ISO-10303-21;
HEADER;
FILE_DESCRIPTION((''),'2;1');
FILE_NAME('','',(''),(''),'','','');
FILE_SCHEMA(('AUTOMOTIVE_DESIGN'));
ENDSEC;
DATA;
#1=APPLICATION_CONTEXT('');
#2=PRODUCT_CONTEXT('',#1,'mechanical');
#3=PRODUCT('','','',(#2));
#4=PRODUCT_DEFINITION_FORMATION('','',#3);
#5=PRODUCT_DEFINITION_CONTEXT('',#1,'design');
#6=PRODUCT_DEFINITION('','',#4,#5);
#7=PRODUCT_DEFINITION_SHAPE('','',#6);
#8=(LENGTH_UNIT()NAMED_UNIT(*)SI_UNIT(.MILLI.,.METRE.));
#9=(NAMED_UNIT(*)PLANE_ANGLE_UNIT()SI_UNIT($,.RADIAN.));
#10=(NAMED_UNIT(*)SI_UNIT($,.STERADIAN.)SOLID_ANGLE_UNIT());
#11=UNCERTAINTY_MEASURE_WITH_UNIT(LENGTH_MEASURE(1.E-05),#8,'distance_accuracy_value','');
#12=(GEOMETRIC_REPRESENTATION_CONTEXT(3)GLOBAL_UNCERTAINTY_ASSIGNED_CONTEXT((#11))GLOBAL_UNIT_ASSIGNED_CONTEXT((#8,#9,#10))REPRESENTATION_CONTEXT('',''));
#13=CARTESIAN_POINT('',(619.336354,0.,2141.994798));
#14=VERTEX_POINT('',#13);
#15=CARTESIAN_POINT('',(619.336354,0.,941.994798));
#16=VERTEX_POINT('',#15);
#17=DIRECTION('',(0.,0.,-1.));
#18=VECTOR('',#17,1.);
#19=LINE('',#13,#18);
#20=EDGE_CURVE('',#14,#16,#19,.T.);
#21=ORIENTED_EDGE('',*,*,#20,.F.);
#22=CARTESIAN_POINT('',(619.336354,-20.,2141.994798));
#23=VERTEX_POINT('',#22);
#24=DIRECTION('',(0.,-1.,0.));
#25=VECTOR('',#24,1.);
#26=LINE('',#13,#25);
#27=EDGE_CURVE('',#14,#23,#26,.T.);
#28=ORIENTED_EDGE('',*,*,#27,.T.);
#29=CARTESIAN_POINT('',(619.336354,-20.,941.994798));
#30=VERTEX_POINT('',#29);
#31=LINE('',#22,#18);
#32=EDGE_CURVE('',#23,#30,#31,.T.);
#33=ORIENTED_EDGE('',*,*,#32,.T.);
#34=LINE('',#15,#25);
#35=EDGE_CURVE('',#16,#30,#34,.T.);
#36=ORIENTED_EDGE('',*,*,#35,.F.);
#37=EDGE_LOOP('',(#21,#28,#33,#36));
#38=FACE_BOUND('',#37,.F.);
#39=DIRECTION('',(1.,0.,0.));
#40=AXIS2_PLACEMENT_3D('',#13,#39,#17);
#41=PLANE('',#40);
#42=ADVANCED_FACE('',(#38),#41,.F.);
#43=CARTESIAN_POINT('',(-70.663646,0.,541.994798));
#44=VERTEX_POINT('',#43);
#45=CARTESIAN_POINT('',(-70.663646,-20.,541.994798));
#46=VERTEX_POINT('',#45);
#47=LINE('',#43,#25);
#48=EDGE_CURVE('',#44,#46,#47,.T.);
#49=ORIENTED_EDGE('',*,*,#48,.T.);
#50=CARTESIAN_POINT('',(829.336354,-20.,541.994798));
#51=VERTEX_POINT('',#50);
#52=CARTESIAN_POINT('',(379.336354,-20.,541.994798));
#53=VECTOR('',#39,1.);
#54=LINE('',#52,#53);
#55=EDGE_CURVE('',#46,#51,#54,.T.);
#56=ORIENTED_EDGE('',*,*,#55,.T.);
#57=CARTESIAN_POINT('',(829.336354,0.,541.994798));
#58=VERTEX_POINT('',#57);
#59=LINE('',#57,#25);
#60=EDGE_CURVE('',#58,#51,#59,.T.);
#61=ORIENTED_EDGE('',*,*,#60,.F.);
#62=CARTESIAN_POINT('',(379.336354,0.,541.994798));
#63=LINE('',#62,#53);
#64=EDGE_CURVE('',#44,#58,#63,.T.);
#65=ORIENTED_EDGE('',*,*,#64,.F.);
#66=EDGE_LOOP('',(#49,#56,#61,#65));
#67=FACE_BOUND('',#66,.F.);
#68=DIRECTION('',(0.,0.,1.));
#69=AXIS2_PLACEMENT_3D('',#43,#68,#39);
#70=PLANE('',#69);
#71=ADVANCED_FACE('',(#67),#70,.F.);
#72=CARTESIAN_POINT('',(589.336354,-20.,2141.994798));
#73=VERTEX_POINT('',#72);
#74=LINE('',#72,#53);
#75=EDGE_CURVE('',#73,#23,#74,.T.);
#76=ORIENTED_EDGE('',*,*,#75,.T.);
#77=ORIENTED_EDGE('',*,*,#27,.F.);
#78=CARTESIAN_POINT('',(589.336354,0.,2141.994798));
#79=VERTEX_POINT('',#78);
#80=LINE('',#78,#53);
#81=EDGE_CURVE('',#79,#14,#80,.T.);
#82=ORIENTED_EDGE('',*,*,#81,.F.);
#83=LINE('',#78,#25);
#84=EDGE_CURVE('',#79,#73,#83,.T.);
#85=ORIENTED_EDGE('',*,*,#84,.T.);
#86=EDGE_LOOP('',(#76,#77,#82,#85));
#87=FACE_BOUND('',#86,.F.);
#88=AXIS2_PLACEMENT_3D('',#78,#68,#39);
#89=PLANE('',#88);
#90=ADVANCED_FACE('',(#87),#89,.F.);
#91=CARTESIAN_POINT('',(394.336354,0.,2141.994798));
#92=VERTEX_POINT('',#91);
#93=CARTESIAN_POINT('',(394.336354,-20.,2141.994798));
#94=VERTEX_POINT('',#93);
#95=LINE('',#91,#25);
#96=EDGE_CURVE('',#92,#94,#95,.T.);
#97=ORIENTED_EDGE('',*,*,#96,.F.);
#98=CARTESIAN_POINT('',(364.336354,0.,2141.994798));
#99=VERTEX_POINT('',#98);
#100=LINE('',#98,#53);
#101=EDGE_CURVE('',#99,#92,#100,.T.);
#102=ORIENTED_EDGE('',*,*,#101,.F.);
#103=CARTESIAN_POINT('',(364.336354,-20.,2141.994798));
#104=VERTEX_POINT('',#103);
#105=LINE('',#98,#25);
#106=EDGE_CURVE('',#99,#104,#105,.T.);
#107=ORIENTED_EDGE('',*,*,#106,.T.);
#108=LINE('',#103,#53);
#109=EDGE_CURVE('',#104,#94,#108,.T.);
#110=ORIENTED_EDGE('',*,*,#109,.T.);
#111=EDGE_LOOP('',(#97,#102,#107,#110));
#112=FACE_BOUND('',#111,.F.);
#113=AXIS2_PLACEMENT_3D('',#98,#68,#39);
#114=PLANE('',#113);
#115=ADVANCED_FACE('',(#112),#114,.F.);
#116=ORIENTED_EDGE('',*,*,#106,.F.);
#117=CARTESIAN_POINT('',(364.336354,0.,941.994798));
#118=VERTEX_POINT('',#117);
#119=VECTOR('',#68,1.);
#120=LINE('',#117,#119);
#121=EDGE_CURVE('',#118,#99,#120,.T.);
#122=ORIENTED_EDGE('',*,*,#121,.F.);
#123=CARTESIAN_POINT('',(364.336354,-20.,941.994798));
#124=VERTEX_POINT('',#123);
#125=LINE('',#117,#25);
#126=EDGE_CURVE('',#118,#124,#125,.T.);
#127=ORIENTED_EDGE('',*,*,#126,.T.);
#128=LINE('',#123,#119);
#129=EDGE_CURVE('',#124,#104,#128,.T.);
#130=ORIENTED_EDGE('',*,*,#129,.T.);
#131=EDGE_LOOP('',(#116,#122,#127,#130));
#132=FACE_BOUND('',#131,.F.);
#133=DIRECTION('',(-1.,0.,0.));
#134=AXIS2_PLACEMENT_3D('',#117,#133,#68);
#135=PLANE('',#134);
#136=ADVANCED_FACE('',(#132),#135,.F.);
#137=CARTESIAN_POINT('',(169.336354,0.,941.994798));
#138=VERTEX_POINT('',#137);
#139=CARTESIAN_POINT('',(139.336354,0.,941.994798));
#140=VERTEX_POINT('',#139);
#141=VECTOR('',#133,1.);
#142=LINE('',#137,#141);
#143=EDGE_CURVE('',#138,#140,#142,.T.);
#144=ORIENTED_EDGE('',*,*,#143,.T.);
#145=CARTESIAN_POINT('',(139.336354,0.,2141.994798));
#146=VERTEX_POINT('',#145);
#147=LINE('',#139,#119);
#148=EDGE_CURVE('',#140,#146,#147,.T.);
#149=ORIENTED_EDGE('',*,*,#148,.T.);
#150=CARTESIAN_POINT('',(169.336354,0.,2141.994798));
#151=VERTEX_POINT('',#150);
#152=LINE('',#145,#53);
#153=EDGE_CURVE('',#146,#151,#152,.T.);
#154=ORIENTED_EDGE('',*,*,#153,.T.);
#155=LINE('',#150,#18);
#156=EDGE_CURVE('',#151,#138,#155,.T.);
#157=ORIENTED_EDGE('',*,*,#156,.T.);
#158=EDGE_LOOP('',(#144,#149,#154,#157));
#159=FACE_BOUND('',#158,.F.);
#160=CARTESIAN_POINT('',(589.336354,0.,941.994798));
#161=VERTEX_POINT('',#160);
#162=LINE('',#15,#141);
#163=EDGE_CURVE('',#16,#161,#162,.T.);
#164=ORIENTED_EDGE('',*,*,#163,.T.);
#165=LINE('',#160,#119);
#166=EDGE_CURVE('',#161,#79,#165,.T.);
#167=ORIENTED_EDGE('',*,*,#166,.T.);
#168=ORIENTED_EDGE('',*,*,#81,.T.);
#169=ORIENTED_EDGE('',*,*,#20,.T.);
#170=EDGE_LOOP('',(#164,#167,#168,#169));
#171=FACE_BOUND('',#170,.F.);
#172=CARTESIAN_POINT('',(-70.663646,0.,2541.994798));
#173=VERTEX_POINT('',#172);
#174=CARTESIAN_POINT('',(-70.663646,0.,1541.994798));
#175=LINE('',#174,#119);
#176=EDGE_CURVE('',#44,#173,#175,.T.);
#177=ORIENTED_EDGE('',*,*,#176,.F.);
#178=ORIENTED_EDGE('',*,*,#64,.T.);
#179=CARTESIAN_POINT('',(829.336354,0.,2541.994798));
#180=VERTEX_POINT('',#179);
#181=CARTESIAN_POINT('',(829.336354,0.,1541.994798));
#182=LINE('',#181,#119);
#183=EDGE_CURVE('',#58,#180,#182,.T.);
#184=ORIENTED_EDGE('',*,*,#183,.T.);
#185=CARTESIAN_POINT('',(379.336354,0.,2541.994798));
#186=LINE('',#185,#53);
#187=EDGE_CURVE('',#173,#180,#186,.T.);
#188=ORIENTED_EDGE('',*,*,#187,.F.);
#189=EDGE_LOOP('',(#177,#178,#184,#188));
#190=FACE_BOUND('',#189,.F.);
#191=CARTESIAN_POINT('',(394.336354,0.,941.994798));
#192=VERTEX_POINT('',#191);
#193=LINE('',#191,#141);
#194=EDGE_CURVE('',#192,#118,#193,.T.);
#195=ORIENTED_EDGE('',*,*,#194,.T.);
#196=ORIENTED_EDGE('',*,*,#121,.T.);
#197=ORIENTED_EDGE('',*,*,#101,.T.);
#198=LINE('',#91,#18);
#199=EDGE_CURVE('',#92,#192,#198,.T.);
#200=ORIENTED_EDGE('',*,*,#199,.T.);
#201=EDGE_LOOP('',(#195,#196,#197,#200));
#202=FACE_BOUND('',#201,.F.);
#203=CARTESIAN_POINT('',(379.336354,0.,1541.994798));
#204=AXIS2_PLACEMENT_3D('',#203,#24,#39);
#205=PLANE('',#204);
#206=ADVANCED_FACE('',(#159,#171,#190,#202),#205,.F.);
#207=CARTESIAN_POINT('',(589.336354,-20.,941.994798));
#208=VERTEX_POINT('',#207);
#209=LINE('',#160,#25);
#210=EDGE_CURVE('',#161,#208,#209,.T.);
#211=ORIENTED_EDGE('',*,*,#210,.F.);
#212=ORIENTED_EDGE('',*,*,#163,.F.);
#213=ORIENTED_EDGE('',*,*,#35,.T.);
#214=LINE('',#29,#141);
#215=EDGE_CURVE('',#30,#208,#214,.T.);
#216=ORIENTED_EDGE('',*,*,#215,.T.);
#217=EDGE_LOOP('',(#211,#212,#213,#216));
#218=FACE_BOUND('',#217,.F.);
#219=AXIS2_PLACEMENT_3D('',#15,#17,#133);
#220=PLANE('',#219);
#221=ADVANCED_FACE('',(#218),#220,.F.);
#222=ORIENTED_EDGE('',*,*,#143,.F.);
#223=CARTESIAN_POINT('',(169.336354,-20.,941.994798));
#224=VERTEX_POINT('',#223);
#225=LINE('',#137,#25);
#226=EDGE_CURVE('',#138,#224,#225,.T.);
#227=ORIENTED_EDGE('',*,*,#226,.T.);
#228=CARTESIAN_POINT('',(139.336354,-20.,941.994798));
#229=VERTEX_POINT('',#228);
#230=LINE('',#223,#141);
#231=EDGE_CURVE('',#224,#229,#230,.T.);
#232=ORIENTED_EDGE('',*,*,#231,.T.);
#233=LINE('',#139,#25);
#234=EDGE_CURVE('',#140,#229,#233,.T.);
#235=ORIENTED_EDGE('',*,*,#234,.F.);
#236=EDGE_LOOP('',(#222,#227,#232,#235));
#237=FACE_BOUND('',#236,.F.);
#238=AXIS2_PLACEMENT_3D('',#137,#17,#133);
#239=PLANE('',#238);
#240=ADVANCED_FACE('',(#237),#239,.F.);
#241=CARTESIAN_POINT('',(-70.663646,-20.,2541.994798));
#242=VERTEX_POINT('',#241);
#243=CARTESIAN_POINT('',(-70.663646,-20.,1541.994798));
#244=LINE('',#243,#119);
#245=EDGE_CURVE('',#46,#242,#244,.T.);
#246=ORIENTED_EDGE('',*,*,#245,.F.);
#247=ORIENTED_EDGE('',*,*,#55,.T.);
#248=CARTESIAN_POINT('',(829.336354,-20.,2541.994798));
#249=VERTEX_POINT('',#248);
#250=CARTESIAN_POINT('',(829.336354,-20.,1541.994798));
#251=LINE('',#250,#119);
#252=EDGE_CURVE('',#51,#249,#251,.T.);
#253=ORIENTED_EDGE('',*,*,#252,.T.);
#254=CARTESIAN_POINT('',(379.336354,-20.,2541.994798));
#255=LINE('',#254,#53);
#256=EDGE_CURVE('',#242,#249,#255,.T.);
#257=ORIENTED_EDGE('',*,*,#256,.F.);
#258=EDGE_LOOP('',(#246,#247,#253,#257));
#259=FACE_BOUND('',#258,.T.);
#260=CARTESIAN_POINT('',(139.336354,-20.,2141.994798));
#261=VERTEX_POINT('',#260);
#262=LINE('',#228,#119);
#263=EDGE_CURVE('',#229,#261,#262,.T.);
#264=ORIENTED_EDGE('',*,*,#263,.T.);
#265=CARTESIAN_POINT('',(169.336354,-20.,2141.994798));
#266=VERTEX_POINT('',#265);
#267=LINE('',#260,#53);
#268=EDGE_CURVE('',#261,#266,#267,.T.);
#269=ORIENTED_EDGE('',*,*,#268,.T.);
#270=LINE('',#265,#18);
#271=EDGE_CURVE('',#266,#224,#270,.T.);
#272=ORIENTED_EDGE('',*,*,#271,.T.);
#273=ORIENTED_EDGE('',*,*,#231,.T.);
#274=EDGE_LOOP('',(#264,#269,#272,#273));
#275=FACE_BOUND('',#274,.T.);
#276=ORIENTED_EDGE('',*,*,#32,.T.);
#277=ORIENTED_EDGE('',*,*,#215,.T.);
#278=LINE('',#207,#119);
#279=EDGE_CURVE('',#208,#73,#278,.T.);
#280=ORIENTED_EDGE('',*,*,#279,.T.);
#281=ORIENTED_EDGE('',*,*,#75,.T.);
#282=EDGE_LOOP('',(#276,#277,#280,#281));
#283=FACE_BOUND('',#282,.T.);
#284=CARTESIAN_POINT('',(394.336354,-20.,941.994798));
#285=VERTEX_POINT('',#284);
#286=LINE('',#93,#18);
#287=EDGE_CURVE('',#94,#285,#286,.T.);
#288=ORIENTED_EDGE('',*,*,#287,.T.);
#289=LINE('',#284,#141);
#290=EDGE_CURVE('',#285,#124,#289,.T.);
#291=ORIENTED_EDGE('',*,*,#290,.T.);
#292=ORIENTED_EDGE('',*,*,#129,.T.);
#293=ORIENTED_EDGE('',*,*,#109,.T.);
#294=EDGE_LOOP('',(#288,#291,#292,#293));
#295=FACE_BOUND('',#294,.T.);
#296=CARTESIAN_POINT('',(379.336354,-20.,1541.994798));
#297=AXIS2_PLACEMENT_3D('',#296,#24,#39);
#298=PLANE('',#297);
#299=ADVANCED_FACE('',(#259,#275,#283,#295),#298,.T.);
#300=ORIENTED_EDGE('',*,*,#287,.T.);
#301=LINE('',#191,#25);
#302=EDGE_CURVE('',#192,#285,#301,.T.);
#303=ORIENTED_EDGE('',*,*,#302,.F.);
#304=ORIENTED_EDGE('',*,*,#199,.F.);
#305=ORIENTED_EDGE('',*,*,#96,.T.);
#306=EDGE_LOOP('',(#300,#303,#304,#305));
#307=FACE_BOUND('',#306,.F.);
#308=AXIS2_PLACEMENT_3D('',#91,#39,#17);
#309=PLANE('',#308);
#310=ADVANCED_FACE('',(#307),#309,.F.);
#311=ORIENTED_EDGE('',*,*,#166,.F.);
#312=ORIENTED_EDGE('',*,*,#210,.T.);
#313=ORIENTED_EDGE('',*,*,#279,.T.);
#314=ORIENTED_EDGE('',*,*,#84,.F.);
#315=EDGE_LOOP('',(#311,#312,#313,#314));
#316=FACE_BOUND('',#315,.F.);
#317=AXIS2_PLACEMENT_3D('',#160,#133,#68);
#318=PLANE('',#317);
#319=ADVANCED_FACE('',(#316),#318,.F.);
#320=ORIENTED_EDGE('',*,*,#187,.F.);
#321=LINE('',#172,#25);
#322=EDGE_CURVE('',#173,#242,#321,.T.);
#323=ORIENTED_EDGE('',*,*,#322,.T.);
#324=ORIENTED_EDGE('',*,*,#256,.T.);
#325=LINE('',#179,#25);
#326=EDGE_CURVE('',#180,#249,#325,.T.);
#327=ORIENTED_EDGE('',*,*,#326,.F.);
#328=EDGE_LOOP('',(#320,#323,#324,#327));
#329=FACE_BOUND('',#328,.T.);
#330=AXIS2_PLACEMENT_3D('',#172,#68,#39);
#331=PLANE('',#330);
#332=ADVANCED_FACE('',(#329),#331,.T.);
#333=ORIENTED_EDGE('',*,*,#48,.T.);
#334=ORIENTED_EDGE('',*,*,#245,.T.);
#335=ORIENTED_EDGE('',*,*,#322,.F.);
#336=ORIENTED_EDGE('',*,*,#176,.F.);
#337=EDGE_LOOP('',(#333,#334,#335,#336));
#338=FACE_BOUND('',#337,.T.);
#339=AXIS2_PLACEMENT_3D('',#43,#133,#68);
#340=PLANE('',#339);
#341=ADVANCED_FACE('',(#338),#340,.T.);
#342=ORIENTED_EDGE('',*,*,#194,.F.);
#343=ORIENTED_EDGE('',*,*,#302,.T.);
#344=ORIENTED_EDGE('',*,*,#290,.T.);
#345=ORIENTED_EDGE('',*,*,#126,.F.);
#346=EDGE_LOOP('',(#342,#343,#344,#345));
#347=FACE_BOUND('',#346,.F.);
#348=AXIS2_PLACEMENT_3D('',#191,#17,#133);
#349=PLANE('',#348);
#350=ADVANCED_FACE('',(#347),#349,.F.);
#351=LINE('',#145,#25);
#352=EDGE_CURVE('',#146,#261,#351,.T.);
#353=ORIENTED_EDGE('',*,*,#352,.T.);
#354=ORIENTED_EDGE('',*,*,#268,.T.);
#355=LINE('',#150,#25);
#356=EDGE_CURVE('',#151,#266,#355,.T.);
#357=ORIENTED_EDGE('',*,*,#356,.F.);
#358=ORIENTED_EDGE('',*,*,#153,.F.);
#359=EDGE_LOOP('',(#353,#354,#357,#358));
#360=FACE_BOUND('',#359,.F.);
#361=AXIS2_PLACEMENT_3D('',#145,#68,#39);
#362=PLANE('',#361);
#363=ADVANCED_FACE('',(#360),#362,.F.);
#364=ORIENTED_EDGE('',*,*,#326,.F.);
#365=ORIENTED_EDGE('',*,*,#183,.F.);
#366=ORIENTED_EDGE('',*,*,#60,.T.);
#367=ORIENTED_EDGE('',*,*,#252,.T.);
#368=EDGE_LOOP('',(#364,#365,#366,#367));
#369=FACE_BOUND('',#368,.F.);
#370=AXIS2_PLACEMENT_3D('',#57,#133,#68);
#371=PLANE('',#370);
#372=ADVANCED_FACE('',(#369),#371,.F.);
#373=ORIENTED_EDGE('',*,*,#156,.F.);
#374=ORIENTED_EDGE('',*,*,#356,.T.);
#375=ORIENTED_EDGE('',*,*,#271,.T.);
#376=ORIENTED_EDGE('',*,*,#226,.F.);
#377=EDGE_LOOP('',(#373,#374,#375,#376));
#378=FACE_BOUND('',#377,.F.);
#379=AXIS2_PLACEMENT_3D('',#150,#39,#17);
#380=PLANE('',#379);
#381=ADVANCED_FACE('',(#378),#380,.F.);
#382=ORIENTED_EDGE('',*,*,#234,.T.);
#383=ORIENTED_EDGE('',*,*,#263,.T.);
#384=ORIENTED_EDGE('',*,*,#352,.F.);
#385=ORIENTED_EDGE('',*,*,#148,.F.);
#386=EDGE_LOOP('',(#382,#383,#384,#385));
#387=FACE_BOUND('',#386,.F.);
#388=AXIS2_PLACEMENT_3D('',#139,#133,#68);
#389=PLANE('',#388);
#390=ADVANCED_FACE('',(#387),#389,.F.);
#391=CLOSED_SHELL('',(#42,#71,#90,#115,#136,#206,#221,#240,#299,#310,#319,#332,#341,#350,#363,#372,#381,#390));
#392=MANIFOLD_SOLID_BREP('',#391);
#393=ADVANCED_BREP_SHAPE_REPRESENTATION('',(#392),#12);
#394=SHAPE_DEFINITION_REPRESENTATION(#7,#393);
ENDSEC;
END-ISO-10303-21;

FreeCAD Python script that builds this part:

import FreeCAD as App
import Part
import Sketcher
Q = App.Units.Quantity


def add_polygon(sketch, points):
    """Adds a closed chain of lines whose ends are joined by coincident constraints."""
    first, n = sketch.GeometryCount, len(points)
    for a, b in zip(points, points[1:] + points[:1]):
        sketch.addGeometry(Part.LineSegment(App.Vector(*a, 0), App.Vector(*b, 0)), False)
    for i in range(n):
        sketch.addConstraint(Sketcher.Constraint("Coincident", first + i, 2, first + (i + 1) % n, 1))

doc = App.newDocument("Part")
body = doc.addObject("PartDesign::Body", "Body")

sketch1 = body.newObject("Sketcher::SketchObject", "Sketch")
sketch1.AttachmentSupport = (doc.getObject("XZ_Plane"), [""])
sketch1.MapMode = "FlatFace"
add_polygon(sketch1, [(-71, 2542), (-71, 542), (829, 542), (829, 2542)])
add_polygon(sketch1, [(139, 942), (139, 2142), (169, 2142), (169, 942)])
add_polygon(sketch1, [(364, 942), (364, 2142), (394, 2142), (394, 942)])
add_polygon(sketch1, [(589, 2142), (619, 2142), (619, 942), (589, 942)])
sketch1.addConstraint([
    Sketcher.Constraint("Vertical", 0),
    Sketcher.Constraint("Horizontal", 1),
    Sketcher.Constraint("Vertical", 2),
    Sketcher.Constraint("Horizontal", 3),
    Sketcher.Constraint("Vertical", 4),
    Sketcher.Constraint("Horizontal", 5),
    Sketcher.Constraint("Vertical", 6),
    Sketcher.Constraint("Horizontal", 7),
    Sketcher.Constraint("Vertical", 8),
    Sketcher.Constraint("Horizontal", 9),
    Sketcher.Constraint("Vertical", 10),
    Sketcher.Constraint("Horizontal", 11),
    Sketcher.Constraint("Horizontal", 12),
    Sketcher.Constraint("Vertical", 13),
    Sketcher.Constraint("Horizontal", 14),
    Sketcher.Constraint("Vertical", 15),
    Sketcher.Constraint("Horizontal", 5, 2, 8, 2),
    Sketcher.Constraint("Horizontal", 7, 2, 10, 2),
    Sketcher.Constraint("Horizontal", 9, 2, 12, 2),
    Sketcher.Constraint("Horizontal", 11, 2, 13, 2),
    Sketcher.Constraint("Equal", 7, 9),
    Sketcher.Constraint("Equal", 11, 12),
    Sketcher.Constraint("DistanceX", 1, 1, 1, 2, Q("900 mm")),
    Sketcher.Constraint("DistanceX", 5, 1, 5, 2, Q("30 mm")),
    Sketcher.Constraint("DistanceY", 0, 2, 0, 1, Q("2000 mm")),
    Sketcher.Constraint("DistanceY", 4, 1, 4, 2, Q("1200 mm")),
    Sketcher.Constraint("DistanceX", 3, 2, 4, 2, Q("210 mm")),
    Sketcher.Constraint("DistanceY", 4, 2, 3, 2, Q("400 mm")),
    Sketcher.Constraint("DistanceX", 5, 2, 8, 2, Q("195 mm")),
    Sketcher.Constraint("DistanceX", 9, 2, 12, 2, Q("225 mm")),
    Sketcher.Constraint("DistanceY", -1, 1, 2, 2, Q("2541.994798 mm")),
    Sketcher.Constraint("DistanceX", 0, 2, -1, 1, Q("70.663646 mm")),
])
pad1 = body.newObject("PartDesign::Pad", "Pad")
pad1.Profile = sketch1
pad1.Length = 20

doc.recompute()
